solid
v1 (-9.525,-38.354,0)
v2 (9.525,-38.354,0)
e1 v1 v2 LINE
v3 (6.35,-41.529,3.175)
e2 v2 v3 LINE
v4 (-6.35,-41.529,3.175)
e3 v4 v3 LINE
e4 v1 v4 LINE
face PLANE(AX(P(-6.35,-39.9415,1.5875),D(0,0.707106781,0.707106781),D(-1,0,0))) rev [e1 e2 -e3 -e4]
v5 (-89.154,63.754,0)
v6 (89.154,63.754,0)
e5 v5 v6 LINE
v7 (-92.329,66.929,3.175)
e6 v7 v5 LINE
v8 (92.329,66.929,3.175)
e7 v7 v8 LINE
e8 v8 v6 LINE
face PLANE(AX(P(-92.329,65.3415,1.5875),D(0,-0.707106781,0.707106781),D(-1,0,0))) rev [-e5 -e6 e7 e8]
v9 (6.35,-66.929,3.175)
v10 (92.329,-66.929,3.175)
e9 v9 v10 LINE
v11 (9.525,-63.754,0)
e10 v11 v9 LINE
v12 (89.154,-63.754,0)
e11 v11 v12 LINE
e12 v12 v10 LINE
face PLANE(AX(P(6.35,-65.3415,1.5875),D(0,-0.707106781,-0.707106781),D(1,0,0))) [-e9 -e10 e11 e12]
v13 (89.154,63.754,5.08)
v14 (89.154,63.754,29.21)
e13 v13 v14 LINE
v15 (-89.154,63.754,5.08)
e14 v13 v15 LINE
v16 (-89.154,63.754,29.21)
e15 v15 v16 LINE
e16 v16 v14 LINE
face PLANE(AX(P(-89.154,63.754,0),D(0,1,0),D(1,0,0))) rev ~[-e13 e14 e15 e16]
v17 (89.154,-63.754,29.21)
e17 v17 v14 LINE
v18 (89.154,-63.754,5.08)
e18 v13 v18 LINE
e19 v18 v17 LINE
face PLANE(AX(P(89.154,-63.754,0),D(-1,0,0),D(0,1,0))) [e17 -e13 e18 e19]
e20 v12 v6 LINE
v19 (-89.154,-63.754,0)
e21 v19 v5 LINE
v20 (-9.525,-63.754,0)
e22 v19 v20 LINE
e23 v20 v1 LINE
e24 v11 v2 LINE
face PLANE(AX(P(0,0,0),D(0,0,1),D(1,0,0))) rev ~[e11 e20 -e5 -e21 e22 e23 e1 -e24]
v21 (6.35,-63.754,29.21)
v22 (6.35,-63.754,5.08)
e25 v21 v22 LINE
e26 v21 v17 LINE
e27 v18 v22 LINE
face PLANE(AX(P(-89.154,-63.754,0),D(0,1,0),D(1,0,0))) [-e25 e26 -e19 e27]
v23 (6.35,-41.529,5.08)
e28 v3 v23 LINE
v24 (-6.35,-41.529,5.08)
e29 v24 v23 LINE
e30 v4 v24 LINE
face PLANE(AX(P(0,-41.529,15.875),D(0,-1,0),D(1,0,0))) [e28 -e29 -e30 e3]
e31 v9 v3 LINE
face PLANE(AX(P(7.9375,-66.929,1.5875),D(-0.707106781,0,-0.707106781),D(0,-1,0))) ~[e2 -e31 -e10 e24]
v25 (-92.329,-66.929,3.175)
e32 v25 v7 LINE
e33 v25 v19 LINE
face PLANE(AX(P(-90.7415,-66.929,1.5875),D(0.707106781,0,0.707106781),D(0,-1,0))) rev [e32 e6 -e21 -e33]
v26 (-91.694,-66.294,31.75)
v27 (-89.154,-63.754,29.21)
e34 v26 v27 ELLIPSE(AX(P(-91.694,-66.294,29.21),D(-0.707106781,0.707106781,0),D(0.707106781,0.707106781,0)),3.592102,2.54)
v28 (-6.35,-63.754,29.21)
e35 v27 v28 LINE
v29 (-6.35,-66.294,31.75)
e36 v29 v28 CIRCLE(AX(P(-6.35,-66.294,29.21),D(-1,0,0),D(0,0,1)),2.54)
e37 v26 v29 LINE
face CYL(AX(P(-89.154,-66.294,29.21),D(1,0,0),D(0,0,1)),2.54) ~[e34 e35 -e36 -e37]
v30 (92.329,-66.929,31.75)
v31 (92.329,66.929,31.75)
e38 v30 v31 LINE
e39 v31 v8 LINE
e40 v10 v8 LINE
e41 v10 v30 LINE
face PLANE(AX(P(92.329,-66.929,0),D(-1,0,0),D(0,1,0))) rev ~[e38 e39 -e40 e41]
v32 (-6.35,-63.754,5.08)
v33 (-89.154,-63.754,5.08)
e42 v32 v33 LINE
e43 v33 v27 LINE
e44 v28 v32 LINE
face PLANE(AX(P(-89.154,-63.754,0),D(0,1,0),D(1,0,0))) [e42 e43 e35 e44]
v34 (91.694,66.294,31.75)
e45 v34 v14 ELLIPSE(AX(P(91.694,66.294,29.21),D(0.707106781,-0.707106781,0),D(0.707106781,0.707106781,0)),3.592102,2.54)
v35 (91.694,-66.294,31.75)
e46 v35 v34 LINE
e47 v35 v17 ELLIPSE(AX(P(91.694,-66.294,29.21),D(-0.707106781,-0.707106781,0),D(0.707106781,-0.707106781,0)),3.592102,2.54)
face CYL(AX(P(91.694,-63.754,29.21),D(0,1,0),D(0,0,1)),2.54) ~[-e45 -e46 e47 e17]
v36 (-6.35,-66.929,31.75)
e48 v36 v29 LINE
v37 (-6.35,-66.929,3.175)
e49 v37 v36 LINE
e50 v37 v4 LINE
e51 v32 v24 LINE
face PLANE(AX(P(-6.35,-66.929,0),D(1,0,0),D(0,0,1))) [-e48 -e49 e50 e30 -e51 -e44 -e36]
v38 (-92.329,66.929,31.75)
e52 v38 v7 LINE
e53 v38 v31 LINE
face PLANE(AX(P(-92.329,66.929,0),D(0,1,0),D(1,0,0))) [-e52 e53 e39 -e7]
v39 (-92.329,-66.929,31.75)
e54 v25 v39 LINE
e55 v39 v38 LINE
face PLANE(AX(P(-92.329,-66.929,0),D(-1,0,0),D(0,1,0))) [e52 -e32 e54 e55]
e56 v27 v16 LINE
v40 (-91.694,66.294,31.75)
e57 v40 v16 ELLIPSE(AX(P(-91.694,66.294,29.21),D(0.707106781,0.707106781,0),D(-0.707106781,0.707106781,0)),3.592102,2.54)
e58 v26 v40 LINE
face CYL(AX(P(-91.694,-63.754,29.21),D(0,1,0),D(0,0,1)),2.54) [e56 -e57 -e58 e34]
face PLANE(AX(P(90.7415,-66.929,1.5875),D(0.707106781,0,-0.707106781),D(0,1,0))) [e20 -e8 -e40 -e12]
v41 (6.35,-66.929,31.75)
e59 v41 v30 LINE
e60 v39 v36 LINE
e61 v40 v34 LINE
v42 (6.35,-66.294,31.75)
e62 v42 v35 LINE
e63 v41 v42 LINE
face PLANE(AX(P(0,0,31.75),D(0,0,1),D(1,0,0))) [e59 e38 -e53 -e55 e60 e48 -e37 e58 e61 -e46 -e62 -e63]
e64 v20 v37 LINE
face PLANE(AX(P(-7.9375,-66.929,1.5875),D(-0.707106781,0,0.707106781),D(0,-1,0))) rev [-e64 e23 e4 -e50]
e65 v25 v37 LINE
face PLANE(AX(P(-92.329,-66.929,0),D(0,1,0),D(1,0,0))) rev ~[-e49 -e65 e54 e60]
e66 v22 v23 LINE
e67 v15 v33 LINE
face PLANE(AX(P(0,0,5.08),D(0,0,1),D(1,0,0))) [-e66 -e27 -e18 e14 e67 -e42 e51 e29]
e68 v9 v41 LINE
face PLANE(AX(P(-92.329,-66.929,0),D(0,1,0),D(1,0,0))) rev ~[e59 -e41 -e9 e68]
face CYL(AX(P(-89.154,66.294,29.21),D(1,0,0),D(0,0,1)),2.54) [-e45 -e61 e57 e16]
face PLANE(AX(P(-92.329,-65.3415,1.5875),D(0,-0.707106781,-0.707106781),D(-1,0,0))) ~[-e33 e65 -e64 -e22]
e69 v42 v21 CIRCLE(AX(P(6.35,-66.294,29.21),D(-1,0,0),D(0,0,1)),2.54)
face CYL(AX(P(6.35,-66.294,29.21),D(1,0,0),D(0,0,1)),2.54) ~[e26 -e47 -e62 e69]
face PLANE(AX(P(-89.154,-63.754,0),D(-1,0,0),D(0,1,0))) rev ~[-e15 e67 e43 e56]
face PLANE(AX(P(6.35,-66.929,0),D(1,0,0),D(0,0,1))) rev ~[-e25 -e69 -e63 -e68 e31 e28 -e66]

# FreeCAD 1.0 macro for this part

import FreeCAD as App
import Part
import Sketcher

V = App.Vector
Q = App.Units.Quantity


def edges_at(feature, points):
    """Names of the edges that pass closest to the given points."""
    edges = feature.Shape.Edges
    near = lambda p: min(range(len(edges)), key=lambda i: edges[i].distToShape(Part.Vertex(*p))[0])
    return sorted({f"Edge{near(p) + 1}" for p in points})

doc = App.newDocument("Part")
body = doc.addObject("PartDesign::Body", "Body")

# Sketch on XY plane
sketch1 = doc.addObject("Sketcher::SketchObject", "Sketch")
body.addObject(sketch1)
sketch1.AttachmentSupport = (doc.XY_Plane, [""])
sketch1.MapMode = "FlatFace"
sketch1.addGeometry([
    Part.LineSegment(V(-92.329, 66.929, 0), V(-92.329, -66.929, 0)),
    Part.LineSegment(V(-92.329, -66.929, 0), V(92.329, -66.929, 0)),
    Part.LineSegment(V(92.329, -66.929, 0), V(92.329, 66.929, 0)),
    Part.LineSegment(V(92.329, 66.929, 0), V(-92.329, 66.929, 0)),
], False)
sketch1.addConstraint([
    Sketcher.Constraint("Coincident", 0, 2, 1, 1),
    Sketcher.Constraint("Coincident", 1, 2, 2, 1),
    Sketcher.Constraint("Coincident", 2, 2, 3, 1),
    Sketcher.Constraint("Coincident", 3, 2, 0, 1),
    Sketcher.Constraint("Vertical", 0),
    Sketcher.Constraint("Horizontal", 1),
    Sketcher.Constraint("Vertical", 2),
    Sketcher.Constraint("Horizontal", 3),
    Sketcher.Constraint("Symmetric", 0, 2, 2, 2, -1, 1),
    Sketcher.Constraint("DistanceX", 1, 1, 1, 2, Q("7.27 in")),
    Sketcher.Constraint("DistanceY", 0, 2, 0, 1, Q("5.27 in")),
])
pad1 = doc.addObject("PartDesign::Pad", "Pad")
body.addObject(pad1)
pad1.Profile = sketch1
pad1.Length = Q("0.2 in")

# Sketch on XY plane
sketch2 = doc.addObject("Sketcher::SketchObject", "Sketch001")
body.addObject(sketch2)
sketch2.AttachmentSupport = (doc.XY_Plane, [""])
sketch2.MapMode = "FlatFace"
sketch2.addGeometry([
    Part.LineSegment(V(-92.329, 66.929, 0), V(-92.329, -66.929, 0)),  # 0
    Part.LineSegment(V(-92.329, -66.929, 0), V(92.329, -66.929, 0)),  # 1
    Part.LineSegment(V(92.329, -66.929, 0), V(92.329, 66.929, 0)),  # 2
    Part.LineSegment(V(92.329, 66.929, 0), V(-92.329, 66.929, 0)),  # 3
    Part.LineSegment(V(89.154, -63.754, 0), V(-89.154, -63.754, 0)),  # 4
    Part.LineSegment(V(-89.154, -63.754, 0), V(-89.154, 63.754, 0)),  # 5
    Part.LineSegment(V(-89.154, 63.754, 0), V(89.154, 63.754, 0)),  # 6
    Part.LineSegment(V(89.154, 63.754, 0), V(89.154, -63.754, 0)),  # 7
], False)
sketch2.addConstraint([
    Sketcher.Constraint("Coincident", 0, 2, 1, 1),
    Sketcher.Constraint("Coincident", 1, 2, 2, 1),
    Sketcher.Constraint("Coincident", 2, 2, 3, 1),
    Sketcher.Constraint("Coincident", 3, 2, 0, 1),
    Sketcher.Constraint("Coincident", 4, 2, 5, 1),
    Sketcher.Constraint("Coincident", 5, 2, 6, 1),
    Sketcher.Constraint("Coincident", 6, 2, 7, 1),
    Sketcher.Constraint("Coincident", 7, 2, 4, 1),
    Sketcher.Constraint("Vertical", 0),
    Sketcher.Constraint("Horizontal", 1),
    Sketcher.Constraint("Vertical", 2),
    Sketcher.Constraint("Horizontal", 3),
    Sketcher.Constraint("Horizontal", 4),
    Sketcher.Constraint("Vertical", 5),
    Sketcher.Constraint("Horizontal", 6),
    Sketcher.Constraint("Vertical", 7),
    Sketcher.Constraint("Symmetric", 0, 2, 2, 2, -1, 1),
    Sketcher.Constraint("Symmetric", 4, 2, 6, 2, -1, 1),
    Sketcher.Constraint("DistanceX", 1, 1, 1, 2, Q("7.27 in")),
    Sketcher.Constraint("DistanceX", 4, 2, 4, 1, Q("7.02 in")),
    Sketcher.Constraint("DistanceY", 0, 2, 0, 1, Q("5.27 in")),
    Sketcher.Constraint("DistanceY", 5, 1, 5, 2, Q("5.02 in")),
])
pad2 = doc.addObject("PartDesign::Pad", "Pad001")
body.addObject(pad2)
pad2.Profile = sketch2
pad2.Length = Q("1.25 in")

# Sketch on XZ plane
sketch3 = doc.addObject("Sketcher::SketchObject", "Sketch002")
body.addObject(sketch3)
sketch3.AttachmentSupport = (doc.XZ_Plane, [""])
sketch3.MapMode = "FlatFace"
sketch3.AttachmentOffset = App.Placement(V(0, 0, 2.635 * 25.4), App.Rotation())
sketch3.addGeometry([
    Part.LineSegment(V(-6.35, 31.75, 0), V(-6.35, 0, 0)),
    Part.LineSegment(V(-6.35, 0, 0), V(6.35, 0, 0)),
    Part.LineSegment(V(6.35, 0, 0), V(6.35, 31.75, 0)),
    Part.LineSegment(V(6.35, 31.75, 0), V(-6.35, 31.75, 0)),
], False)
sketch3.addConstraint([
    Sketcher.Constraint("Coincident", 0, 2, 1, 1),
    Sketcher.Constraint("Coincident", 1, 2, 2, 1),
    Sketcher.Constraint("Coincident", 2, 2, 3, 1),
    Sketcher.Constraint("Coincident", 3, 2, 0, 1),
    Sketcher.Constraint("Vertical", 0),
    Sketcher.Constraint("Horizontal", 1),
    Sketcher.Constraint("Vertical", 2),
    Sketcher.Constraint("Horizontal", 3),
    Sketcher.Constraint("Symmetric", 0, 2, 1, 2, -1, 1),
    Sketcher.Constraint("DistanceX", 1, 1, 1, 2, Q("0.5 in")),
    Sketcher.Constraint("DistanceY", 0, 2, 0, 1, Q("1.25 in")),
])
pocket1 = doc.addObject("PartDesign::Pocket", "Pocket")
body.addObject(pocket1)
pocket1.Profile = sketch3
pocket1.Length = Q("1 in")
doc.recompute()

chamfer = doc.addObject("PartDesign::Chamfer", "Chamfer")
body.addObject(chamfer)
chamfer.Base = (pocket1, edges_at(pocket1, [
    (49.34, -66.929, 0),
    (6.35, -54.229, 0),
    (0, -41.529, 0),
    (-6.35, -54.229, 0),
    (-49.34, -66.929, 0),
    (-92.329, 0, 0),
    (0, 66.929, 0),
    (92.329, 0, 0),
]))
chamfer.ChamferType = "Two distances"
chamfer.Size = Q("0.125 in")
chamfer.Size2 = Q("0.125 in")
doc.recompute()

fillet = doc.addObject("PartDesign::Fillet", "Fillet")
body.addObject(fillet)
fillet.Base = (chamfer, edges_at(chamfer, [
    (47.752, -63.754, 31.75),
    (-47.752, -63.754, 31.75),
    (89.154, 0, 31.75),
    (-89.154, 0, 31.75),
    (0, 63.754, 31.75),
]))
fillet.Radius = Q("0.1 in")

doc.recompute()
